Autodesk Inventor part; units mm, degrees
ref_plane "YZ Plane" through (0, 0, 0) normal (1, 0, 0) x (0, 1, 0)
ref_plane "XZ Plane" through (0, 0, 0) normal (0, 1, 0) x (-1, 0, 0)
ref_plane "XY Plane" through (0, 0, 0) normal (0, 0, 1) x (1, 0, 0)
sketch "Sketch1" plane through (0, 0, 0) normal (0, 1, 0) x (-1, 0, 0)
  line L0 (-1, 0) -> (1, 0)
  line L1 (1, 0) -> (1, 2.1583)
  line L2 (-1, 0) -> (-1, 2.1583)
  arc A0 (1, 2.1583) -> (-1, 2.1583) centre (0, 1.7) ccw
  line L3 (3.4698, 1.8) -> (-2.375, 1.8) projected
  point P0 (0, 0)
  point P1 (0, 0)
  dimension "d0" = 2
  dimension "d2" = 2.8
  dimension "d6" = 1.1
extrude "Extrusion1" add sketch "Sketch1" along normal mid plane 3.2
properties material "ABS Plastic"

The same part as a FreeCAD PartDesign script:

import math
import FreeCAD as App
import Part
import Sketcher

doc = App.newDocument("Part")
body = doc.addObject("PartDesign::Body", "Body")

# Sketch on XZ plane
sketch1 = body.newObject("Sketcher::SketchObject", "Sketch")
sketch1.AttachmentSupport = (doc.getObject("XZ_Plane"), [""])
sketch1.MapMode = "FlatFace"
sketch1.addGeometry([
    Part.LineSegment(App.Vector(1, 0, 0), App.Vector(-1, 0, 0)),
    Part.LineSegment(App.Vector(-1, 0, 0), App.Vector(-1, 2.2, 0)),
    Part.ArcOfCircle(Part.Circle(App.Vector(0, 1.7, 0), App.Vector(0, 0, 1), 1.1), math.radians(25), math.radians(155)),
    Part.LineSegment(App.Vector(1, 2.2, 0), App.Vector(1, 0, 0)),
], False)
sketch1.addConstraint([
    Sketcher.Constraint("Coincident", 0, 2, 1, 1),
    Sketcher.Constraint("Coincident", 1, 2, 2, 2),
    Sketcher.Constraint("Coincident", 2, 1, 3, 1),
    Sketcher.Constraint("Coincident", 3, 2, 0, 1),
    Sketcher.Constraint("Horizontal", 0),
    Sketcher.Constraint("Vertical", 1),
    Sketcher.Constraint("Vertical", 3),
    Sketcher.Constraint("Symmetric", 0, 2, 3, 2, -1, 1),
    Sketcher.Constraint("PointOnObject", 2, 3, -2),
    Sketcher.Constraint("Radius", 2, 1.1),
    Sketcher.Constraint("DistanceX", 0, 2, 0, 1, 2.0),
    Sketcher.Constraint("DistanceY", -1, 1, 2, 3, 1.7),
])
pad1 = body.newObject("PartDesign::Pad", "Pad")
pad1.Profile = sketch1
pad1.Length = 3.2
pad1.Midplane = True

doc.recompute()
